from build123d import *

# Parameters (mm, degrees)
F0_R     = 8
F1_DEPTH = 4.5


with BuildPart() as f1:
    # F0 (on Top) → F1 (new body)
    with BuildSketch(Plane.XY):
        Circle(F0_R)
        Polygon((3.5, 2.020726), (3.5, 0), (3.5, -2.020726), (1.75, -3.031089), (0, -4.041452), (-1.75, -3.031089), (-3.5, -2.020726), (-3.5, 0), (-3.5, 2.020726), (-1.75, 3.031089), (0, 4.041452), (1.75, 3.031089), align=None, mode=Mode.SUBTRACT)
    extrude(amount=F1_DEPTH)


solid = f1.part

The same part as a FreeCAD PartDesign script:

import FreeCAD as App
import Part
import Sketcher

V = App.Vector
Q = App.Units.Quantity

doc = App.newDocument("Part")
body = doc.addObject("PartDesign::Body", "Body")

sketch1 = body.newObject("Sketcher::SketchObject", "Sketch")
sketch1.AttachmentSupport = (doc.getObject("XY_Plane"), [""])
sketch1.MapMode = "FlatFace"
sketch1.addGeometry(Part.Circle(V(0, 0, 0), V(0, 0, 1), 8), False)
sketch1.addGeometry(Part.LineSegment(V(0, 4, 0), V(3.5, 2, 0)), False)
sketch1.addGeometry(Part.LineSegment(V(3.5, 2, 0), V(3.5, -2, 0)), False)
sketch1.addGeometry(Part.LineSegment(V(3.5, -2, 0), V(0, -4, 0)), False)
sketch1.addGeometry(Part.LineSegment(V(0, -4, 0), V(-3.5, -2, 0)), False)
sketch1.addGeometry(Part.LineSegment(V(-3.5, -2, 0), V(-3.5, 2, 0)), False)
sketch1.addGeometry(Part.LineSegment(V(-3.5, 2, 0), V(0, 4, 0)), False)
sketch1.addConstraint(Sketcher.Constraint("Coincident", 1, 2, 2, 1))
sketch1.addConstraint(Sketcher.Constraint("Coincident", 2, 2, 3, 1))
sketch1.addConstraint(Sketcher.Constraint("Coincident", 3, 2, 4, 1))
sketch1.addConstraint(Sketcher.Constraint("Coincident", 4, 2, 5, 1))
sketch1.addConstraint(Sketcher.Constraint("Coincident", 5, 2, 6, 1))
sketch1.addConstraint(Sketcher.Constraint("Coincident", 6, 2, 1, 1))
sketch1.addConstraint(Sketcher.Constraint("Vertical", 2))
sketch1.addConstraint(Sketcher.Constraint("Vertical", 5))
sketch1.addConstraint(Sketcher.Constraint("Coincident", 0, 3, -1, 1))
sketch1.addConstraint(Sketcher.Constraint("Symmetric", 1, 2, 4, 2, -1, 1))
sketch1.addConstraint(Sketcher.Constraint("Symmetric", 3, 2, 6, 2, -1, 1))
sketch1.addConstraint(Sketcher.Constraint("PointOnObject", 3, 2, -2))
sketch1.addConstraint(Sketcher.Constraint("Parallel", 3, 6))
sketch1.addConstraint(Sketcher.Constraint("Horizontal", 2, 2, 4, 2))
sketch1.addConstraint(Sketcher.Constraint("Diameter", 0, Q("16 mm")))
sketch1.addConstraint(Sketcher.Constraint("Angle", 1, Q("-30.000001 deg")))
sketch1.addConstraint(Sketcher.Constraint("DistanceX", 4, 2, 2, 2, Q("7 mm")))
sketch1.addConstraint(Sketcher.Constraint("DistanceY", 2, 2, 2, 1, Q("4.041452 mm")))
pad1 = body.newObject("PartDesign::Pad", "Pad")
pad1.Profile = sketch1
pad1.Length = 4.5

doc.recompute()
